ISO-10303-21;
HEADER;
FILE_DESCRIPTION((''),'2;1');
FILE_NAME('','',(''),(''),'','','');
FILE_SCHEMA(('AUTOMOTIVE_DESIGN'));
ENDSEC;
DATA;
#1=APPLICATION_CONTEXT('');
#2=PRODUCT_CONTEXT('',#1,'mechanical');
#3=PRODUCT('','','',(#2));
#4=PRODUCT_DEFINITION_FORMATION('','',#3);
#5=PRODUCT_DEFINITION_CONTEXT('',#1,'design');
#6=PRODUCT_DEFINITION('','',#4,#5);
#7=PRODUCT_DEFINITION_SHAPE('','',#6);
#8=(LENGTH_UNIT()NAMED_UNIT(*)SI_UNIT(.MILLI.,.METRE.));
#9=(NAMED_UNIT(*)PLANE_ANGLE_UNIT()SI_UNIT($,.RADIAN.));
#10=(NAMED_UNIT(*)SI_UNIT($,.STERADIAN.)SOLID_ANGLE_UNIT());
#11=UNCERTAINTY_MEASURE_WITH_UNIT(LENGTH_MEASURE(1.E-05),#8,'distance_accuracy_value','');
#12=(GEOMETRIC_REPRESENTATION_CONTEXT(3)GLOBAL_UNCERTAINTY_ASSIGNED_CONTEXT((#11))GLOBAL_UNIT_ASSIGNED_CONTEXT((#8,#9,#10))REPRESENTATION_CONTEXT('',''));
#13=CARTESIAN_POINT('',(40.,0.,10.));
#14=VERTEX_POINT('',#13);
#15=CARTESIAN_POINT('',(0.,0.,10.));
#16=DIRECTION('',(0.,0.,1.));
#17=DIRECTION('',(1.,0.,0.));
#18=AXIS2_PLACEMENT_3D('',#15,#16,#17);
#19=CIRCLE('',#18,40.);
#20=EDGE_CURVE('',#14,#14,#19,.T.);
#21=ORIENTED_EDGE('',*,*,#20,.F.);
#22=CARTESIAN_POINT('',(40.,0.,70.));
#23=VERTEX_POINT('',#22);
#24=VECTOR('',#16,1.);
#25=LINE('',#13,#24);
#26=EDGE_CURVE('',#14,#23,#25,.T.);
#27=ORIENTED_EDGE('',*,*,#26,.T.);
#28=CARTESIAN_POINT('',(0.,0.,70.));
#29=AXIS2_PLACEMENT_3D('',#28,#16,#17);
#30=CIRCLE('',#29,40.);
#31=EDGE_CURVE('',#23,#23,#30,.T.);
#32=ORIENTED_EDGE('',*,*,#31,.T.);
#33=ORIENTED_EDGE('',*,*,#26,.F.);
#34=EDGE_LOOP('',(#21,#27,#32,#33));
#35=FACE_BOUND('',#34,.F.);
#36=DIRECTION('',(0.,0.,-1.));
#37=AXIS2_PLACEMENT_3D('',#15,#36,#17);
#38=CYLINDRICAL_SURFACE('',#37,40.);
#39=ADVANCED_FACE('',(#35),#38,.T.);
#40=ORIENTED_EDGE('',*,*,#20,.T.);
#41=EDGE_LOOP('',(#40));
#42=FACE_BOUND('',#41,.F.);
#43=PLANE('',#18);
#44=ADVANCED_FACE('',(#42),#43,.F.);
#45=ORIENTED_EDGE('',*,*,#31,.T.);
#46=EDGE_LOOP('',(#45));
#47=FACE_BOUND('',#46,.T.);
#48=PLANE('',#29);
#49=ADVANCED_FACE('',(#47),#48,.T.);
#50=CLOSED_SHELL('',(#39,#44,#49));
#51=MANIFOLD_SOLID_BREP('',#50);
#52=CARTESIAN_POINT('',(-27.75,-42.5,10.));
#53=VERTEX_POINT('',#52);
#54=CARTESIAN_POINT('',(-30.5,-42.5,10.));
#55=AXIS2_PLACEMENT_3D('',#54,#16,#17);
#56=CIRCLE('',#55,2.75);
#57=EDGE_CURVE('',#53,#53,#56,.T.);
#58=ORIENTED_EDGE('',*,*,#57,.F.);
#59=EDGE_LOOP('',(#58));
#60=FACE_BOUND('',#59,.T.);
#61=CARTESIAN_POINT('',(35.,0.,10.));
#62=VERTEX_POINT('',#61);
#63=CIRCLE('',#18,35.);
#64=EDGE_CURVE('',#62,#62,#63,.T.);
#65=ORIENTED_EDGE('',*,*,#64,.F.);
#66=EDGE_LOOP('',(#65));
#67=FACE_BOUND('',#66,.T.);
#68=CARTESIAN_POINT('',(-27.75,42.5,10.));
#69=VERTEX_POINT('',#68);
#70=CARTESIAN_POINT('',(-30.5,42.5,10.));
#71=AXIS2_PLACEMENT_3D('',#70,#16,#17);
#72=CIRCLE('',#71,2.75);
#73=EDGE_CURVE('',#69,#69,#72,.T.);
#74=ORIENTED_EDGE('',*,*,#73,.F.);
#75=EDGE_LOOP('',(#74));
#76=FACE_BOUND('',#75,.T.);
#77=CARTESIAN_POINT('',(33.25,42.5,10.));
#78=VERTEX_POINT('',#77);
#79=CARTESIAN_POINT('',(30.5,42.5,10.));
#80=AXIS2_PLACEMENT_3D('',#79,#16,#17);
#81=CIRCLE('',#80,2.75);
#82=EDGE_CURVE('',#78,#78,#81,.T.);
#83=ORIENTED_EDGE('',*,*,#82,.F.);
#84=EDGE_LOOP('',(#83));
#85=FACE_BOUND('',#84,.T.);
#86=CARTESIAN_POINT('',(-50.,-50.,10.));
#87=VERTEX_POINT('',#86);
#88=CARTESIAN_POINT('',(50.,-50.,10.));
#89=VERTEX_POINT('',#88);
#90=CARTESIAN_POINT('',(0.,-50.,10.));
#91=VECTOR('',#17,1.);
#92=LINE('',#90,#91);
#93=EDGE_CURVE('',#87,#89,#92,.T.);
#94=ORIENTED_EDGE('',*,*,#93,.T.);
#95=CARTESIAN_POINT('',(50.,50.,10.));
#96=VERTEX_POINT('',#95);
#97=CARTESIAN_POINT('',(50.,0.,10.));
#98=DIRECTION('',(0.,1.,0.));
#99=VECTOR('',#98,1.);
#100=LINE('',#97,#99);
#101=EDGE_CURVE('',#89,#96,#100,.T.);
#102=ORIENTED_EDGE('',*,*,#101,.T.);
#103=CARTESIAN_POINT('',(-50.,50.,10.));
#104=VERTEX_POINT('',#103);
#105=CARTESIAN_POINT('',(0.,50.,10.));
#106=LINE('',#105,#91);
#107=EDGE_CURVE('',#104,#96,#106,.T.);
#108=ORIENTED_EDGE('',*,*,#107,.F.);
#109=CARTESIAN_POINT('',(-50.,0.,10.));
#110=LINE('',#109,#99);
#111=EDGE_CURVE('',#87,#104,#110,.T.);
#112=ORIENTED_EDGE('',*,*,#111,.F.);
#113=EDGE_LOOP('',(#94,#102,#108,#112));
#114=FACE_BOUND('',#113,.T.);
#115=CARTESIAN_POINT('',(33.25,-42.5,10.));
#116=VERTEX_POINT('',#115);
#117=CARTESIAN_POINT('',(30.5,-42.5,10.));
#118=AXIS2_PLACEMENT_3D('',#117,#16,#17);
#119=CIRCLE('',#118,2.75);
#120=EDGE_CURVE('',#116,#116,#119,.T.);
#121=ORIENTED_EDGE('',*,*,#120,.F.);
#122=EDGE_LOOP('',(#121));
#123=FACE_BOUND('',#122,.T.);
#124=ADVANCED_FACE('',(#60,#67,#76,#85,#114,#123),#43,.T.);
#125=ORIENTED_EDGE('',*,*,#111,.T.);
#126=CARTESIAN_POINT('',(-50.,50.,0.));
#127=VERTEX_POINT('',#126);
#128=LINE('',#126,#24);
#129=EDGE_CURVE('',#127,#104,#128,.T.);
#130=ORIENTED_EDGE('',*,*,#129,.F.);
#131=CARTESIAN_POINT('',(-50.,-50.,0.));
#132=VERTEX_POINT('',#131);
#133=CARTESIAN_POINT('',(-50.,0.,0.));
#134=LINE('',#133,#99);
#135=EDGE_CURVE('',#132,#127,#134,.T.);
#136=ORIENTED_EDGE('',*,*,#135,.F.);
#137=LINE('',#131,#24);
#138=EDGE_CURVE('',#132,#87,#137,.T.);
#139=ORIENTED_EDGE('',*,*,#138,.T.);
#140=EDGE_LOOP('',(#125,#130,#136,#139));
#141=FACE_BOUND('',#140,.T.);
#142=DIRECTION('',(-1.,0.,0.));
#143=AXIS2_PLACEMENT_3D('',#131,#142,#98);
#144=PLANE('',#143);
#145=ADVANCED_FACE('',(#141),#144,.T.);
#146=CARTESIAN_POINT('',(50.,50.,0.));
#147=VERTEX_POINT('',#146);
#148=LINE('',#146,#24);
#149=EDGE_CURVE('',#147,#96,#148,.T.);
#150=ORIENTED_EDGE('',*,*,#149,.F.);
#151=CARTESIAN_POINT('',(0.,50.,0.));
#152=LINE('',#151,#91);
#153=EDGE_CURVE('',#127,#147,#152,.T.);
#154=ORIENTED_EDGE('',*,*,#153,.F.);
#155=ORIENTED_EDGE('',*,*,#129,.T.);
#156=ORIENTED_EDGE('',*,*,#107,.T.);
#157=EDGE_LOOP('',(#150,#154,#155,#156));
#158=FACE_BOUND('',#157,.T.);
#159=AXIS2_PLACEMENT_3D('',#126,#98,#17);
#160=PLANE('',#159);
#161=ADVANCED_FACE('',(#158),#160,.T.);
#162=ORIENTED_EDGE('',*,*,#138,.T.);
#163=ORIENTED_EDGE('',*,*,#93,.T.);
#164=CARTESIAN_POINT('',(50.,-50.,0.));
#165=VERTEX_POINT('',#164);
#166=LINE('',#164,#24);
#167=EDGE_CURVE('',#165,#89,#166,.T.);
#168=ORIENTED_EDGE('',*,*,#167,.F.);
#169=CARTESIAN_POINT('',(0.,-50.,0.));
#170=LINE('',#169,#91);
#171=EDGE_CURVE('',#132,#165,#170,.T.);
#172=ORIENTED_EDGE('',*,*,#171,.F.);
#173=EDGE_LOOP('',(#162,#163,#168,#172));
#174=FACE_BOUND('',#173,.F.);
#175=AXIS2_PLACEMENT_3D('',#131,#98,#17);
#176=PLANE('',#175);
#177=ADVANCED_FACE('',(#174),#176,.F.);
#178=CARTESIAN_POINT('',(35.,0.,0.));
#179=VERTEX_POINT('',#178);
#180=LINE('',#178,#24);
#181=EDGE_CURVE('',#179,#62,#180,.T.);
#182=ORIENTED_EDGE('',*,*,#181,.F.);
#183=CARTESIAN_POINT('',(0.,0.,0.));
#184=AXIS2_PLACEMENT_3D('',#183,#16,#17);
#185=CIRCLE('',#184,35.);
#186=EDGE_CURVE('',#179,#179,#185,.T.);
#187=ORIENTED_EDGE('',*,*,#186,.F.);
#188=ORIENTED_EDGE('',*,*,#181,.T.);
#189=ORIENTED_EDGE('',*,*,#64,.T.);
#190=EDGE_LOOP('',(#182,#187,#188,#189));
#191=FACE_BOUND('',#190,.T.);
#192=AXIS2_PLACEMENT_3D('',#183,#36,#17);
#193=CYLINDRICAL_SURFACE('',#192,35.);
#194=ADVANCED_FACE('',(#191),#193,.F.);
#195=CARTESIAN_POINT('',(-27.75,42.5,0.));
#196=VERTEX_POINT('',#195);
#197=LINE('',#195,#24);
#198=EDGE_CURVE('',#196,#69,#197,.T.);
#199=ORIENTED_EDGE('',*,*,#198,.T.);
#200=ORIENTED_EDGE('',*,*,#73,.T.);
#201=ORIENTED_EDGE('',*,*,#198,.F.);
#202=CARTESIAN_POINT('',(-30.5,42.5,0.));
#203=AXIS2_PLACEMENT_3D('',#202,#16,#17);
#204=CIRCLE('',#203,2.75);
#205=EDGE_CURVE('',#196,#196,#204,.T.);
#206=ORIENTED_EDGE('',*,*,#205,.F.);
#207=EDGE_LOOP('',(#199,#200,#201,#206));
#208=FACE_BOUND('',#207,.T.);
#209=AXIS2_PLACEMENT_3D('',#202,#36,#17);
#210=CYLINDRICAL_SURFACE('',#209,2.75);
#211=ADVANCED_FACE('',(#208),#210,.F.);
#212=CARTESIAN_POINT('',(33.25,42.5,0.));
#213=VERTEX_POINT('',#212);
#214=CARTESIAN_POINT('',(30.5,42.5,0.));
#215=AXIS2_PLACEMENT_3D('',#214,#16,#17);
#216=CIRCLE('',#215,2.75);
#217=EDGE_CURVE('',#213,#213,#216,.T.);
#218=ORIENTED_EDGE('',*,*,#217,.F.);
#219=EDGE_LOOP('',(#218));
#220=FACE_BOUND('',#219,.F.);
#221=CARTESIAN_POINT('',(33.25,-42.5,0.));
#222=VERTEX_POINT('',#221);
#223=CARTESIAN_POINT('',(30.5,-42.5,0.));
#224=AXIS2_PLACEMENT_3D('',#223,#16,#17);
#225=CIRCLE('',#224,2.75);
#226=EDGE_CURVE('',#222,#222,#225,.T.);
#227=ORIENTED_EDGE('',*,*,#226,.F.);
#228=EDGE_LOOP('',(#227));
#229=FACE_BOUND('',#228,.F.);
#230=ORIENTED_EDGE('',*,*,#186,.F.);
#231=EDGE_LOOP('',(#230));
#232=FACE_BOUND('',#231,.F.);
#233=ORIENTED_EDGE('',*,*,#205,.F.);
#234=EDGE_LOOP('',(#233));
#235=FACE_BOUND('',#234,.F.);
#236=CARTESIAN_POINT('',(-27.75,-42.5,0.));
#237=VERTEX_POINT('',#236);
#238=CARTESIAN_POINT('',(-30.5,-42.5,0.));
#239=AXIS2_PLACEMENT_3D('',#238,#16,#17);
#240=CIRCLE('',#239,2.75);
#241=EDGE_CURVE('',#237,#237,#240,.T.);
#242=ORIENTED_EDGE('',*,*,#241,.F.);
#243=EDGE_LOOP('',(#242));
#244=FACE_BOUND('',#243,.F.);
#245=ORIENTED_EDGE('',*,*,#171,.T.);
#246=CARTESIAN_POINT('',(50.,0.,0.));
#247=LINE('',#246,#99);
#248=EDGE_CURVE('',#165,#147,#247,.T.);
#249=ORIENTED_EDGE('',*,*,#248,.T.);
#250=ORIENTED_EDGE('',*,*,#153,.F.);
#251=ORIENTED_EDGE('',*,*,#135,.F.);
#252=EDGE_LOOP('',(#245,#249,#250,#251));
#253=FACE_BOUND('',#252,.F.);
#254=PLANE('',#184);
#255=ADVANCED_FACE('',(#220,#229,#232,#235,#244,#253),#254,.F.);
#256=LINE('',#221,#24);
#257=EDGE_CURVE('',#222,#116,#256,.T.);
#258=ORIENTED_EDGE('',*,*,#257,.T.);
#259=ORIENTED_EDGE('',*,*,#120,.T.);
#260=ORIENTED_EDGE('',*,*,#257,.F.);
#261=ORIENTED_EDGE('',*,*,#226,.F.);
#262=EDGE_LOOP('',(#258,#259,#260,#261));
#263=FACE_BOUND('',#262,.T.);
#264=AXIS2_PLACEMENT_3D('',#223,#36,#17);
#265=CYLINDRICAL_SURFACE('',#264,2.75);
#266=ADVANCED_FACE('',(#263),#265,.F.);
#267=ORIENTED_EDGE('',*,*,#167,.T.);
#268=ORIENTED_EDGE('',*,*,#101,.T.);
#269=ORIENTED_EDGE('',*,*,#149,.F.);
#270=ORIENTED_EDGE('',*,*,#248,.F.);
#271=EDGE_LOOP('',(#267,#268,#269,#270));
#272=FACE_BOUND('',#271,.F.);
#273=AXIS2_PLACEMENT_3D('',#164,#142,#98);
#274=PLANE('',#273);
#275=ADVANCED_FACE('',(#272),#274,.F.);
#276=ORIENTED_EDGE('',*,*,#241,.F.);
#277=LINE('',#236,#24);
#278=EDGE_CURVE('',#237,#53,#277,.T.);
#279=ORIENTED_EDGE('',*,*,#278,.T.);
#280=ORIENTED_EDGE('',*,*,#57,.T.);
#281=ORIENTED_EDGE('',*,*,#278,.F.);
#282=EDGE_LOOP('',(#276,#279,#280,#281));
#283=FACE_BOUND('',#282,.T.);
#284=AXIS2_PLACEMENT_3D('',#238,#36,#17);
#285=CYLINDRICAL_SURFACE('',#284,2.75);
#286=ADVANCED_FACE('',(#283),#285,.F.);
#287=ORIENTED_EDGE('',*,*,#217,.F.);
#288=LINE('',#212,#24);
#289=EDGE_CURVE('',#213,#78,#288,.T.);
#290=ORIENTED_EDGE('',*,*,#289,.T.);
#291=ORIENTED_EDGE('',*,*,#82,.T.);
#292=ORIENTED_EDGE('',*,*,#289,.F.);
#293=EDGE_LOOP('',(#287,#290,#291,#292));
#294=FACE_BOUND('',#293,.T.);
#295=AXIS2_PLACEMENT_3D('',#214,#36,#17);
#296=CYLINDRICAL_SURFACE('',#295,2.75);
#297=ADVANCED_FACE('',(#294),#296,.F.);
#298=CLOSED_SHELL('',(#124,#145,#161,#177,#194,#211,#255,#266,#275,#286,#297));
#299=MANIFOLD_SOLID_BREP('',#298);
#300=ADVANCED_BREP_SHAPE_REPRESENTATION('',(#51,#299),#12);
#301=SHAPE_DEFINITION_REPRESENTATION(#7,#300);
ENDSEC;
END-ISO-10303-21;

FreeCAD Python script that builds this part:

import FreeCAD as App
import Part
import Sketcher

V = App.Vector
Q = App.Units.Quantity

doc = App.newDocument("Part")
body = doc.addObject("PartDesign::Body", "Body")

# Sketch on XY plane
sketch1 = body.newObject("Sketcher::SketchObject", "Sketch")
sketch1.AttachmentSupport = (doc.getObject("XY_Plane"), [""])
sketch1.MapMode = "FlatFace"
sketch1.addGeometry(Part.LineSegment(V(-50, 50, 0), V(-50, -50, 0)), False)
sketch1.addGeometry(Part.LineSegment(V(-50, -50, 0), V(50, -50, 0)), False)
sketch1.addGeometry(Part.LineSegment(V(50, -50, 0), V(50, 50, 0)), False)
sketch1.addGeometry(Part.LineSegment(V(50, 50, 0), V(-50, 50, 0)), False)
sketch1.addGeometry(Part.Circle(V(-30.5, -42.5, 0), V(0, 0, 1), 2.8), False)
sketch1.addGeometry(Part.Circle(V(30.5, -42.5, 0), V(0, 0, 1), 2.8), False)
sketch1.addGeometry(Part.Circle(V(-30.5, 42.5, 0), V(0, 0, 1), 2.8), False)
sketch1.addGeometry(Part.Circle(V(0, 0, 0), V(0, 0, 1), 35), False)
sketch1.addGeometry(Part.Circle(V(30.5, 42.5, 0), V(0, 0, 1), 2.8), False)
sketch1.addConstraint(Sketcher.Constraint("Coincident", 0, 2, 1, 1))
sketch1.addConstraint(Sketcher.Constraint("Coincident", 1, 2, 2, 1))
sketch1.addConstraint(Sketcher.Constraint("Coincident", 2, 2, 3, 1))
sketch1.addConstraint(Sketcher.Constraint("Coincident", 3, 2, 0, 1))
sketch1.addConstraint(Sketcher.Constraint("Vertical", 0))
sketch1.addConstraint(Sketcher.Constraint("Horizontal", 1))
sketch1.addConstraint(Sketcher.Constraint("Vertical", 2))
sketch1.addConstraint(Sketcher.Constraint("Horizontal", 3))
sketch1.addConstraint(Sketcher.Constraint("Coincident", 7, 3, -1, 1))
sketch1.addConstraint(Sketcher.Constraint("Equal", 4, 5))
sketch1.addConstraint(Sketcher.Constraint("Equal", 5, 6))
sketch1.addConstraint(Sketcher.Constraint("Equal", 6, 8))
sketch1.addConstraint(Sketcher.Constraint("Symmetric", 5, 3, 6, 3, -1, 1))
sketch1.addConstraint(Sketcher.Constraint("Symmetric", 4, 3, 8, 3, -1, 1))
sketch1.addConstraint(Sketcher.Constraint("Symmetric", 0, 2, 2, 2, -1, 1))
sketch1.addConstraint(Sketcher.Constraint("Symmetric", 4, 3, 5, 3, -2))
sketch1.addConstraint(Sketcher.Constraint("Equal", 3, 0))
sketch1.addConstraint(Sketcher.Constraint("Diameter", 7, Q("70 mm")))
sketch1.addConstraint(Sketcher.Constraint("Diameter", 4, Q("5.5 mm")))
sketch1.addConstraint(Sketcher.Constraint("DistanceX", 1, 1, 1, 2, Q("100 mm")))
sketch1.addConstraint(Sketcher.Constraint("DistanceX", 4, 3, 5, 3, Q("61 mm")))
sketch1.addConstraint(Sketcher.Constraint("DistanceY", 4, 3, 6, 3, Q("85 mm")))
pad1 = body.newObject("PartDesign::Pad", "Pad")
pad1.Profile = sketch1
pad1.Length = 10
body2 = doc.addObject("PartDesign::Body", "Body001")

# Sketch on XY plane
sketch2 = body2.newObject("Sketcher::SketchObject", "Sketch001")
sketch2.AttachmentSupport = (doc.getObject("XY_Plane001"), [""])
sketch2.MapMode = "FlatFace"
sketch2.AttachmentOffset = App.Placement(V(0, 0, 10), App.Rotation())
sketch2.addGeometry(Part.Circle(V(0, 0, 0), V(0, 0, 1), 40), False)
sketch2.addConstraint(Sketcher.Constraint("Coincident", 0, 3, -1, 1))
sketch2.addConstraint(Sketcher.Constraint("Diameter", 0, Q("80 mm")))
pad2 = body2.newObject("PartDesign::Pad", "Pad001")
pad2.Profile = sketch2
pad2.Length = 60

doc.recompute()
